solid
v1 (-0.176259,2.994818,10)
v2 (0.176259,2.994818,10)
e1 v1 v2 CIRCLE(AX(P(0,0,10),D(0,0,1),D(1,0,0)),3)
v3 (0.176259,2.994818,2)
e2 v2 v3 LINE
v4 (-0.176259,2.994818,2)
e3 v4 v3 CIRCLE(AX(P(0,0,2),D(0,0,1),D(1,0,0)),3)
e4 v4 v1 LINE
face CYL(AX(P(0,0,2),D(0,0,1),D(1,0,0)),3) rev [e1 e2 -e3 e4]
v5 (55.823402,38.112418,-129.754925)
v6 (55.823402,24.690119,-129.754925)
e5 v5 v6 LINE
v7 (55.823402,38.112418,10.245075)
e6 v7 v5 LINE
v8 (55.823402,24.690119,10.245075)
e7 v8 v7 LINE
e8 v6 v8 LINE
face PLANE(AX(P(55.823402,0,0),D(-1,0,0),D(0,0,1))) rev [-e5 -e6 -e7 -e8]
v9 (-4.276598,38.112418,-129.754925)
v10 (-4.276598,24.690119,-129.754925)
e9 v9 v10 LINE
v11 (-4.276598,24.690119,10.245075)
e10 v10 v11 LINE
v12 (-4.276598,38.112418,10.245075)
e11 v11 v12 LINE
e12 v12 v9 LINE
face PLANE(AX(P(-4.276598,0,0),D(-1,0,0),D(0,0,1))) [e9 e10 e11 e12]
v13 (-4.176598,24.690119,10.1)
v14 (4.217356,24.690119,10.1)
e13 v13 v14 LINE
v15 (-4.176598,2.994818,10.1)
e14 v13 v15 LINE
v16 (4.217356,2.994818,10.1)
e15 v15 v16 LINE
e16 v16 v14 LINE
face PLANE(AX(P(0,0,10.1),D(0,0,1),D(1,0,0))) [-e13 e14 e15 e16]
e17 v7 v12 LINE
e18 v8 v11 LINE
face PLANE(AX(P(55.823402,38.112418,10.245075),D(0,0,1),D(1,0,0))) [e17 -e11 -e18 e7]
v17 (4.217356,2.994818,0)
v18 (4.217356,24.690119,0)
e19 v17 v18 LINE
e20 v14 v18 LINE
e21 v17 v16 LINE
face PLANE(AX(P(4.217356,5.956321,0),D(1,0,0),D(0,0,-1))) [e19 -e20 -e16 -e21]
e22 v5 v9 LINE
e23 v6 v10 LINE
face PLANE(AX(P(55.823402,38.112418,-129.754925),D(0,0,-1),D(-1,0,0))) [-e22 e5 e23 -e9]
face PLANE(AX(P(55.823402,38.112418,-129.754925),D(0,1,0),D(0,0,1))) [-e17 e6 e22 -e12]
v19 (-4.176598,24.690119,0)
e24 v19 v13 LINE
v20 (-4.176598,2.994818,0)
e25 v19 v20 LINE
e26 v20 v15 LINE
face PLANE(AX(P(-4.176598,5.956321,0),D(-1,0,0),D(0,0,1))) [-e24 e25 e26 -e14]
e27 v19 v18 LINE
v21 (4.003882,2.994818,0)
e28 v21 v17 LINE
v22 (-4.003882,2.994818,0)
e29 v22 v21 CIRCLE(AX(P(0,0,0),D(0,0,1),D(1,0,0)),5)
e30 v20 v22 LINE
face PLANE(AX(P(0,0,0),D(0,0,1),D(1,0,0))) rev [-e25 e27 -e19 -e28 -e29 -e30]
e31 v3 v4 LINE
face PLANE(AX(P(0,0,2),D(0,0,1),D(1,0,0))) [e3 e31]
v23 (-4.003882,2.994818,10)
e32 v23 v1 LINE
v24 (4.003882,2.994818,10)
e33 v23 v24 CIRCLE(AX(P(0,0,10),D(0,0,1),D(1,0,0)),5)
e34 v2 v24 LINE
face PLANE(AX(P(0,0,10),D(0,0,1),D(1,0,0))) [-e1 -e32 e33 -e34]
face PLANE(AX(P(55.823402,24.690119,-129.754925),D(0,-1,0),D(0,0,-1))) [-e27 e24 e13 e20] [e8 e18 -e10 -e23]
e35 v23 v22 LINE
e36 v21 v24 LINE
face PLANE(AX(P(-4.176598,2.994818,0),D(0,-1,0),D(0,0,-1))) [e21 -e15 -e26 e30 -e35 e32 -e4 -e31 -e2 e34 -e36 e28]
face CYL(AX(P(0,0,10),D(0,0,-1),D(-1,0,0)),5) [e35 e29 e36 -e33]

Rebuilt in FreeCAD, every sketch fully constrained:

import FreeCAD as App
import Part
import Sketcher

V = App.Vector
Q = App.Units.Quantity


def add_polygon(sketch, points):
    """Adds a closed chain of lines whose ends are joined by coincident constraints."""
    first, n = sketch.GeometryCount, len(points)
    for a, b in zip(points, points[1:] + points[:1]):
        sketch.addGeometry(Part.LineSegment(App.Vector(*a, 0), App.Vector(*b, 0)), False)
    for i in range(n):
        sketch.addConstraint(Sketcher.Constraint("Coincident", first + i, 2, first + (i + 1) % n, 1))

doc = App.newDocument("Part")
body = doc.addObject("PartDesign::Body", "Body")

# Sketch on XY plane
sketch1 = body.newObject("Sketcher::SketchObject", "Sketch")
sketch1.AttachmentSupport = (doc.getObject("XY_Plane"), [""])
sketch1.MapMode = "FlatFace"
sketch1.addGeometry(Part.Circle(V(0, 0, 0), V(0, 0, 1), 5), False)
sketch1.addConstraint(Sketcher.Constraint("Coincident", 0, 3, -1, 1))
sketch1.addConstraint(Sketcher.Constraint("Diameter", 0, Q("10 mm")))
pad1 = body.newObject("PartDesign::Pad", "Pad")
pad1.Profile = sketch1
pad1.Length = 10

# Sketch on XY plane
sketch2 = body.newObject("Sketcher::SketchObject", "Sketch001")
sketch2.AttachmentSupport = (doc.getObject("XY_Plane"), [""])
sketch2.MapMode = "FlatFace"
sketch2.AttachmentOffset = App.Placement(V(0, 0, 10), App.Rotation())
sketch2.addGeometry(Part.Circle(V(0, 0, 0), V(0, 0, 1), 3), False)
sketch2.addConstraint(Sketcher.Constraint("Coincident", 0, 3, -1, 1))
sketch2.addConstraint(Sketcher.Constraint("Diameter", 0, Q("6 mm")))
pocket1 = body.newObject("PartDesign::Pocket", "Pocket")
pocket1.Profile = sketch2
pocket1.Length = 8

# Sketch on XY plane
sketch3 = body.newObject("Sketcher::SketchObject", "Sketch002")
sketch3.AttachmentSupport = (doc.getObject("XY_Plane"), [""])
sketch3.MapMode = "FlatFace"
sketch3.AttachmentOffset = App.Placement(V(0, 0, 10), App.Rotation())
add_polygon(sketch3, [(-4.2, 6), (-4.2, 3), (4.2, 3), (4.2, 6)])  # lines 0-3
sketch3.addConstraint(Sketcher.Constraint("Vertical", 0))
sketch3.addConstraint(Sketcher.Constraint("Horizontal", 1))
sketch3.addConstraint(Sketcher.Constraint("Vertical", 2))
sketch3.addConstraint(Sketcher.Constraint("Horizontal", 3))
sketch3.addConstraint(Sketcher.Constraint("DistanceX", 1, 1, 1, 2, Q("8.393954 mm")))
sketch3.addConstraint(Sketcher.Constraint("DistanceY", 0, 2, 0, 1, Q("2.961503 mm")))
sketch3.addConstraint(Sketcher.Constraint("DistanceY", -1, 1, 2, 2, Q("5.956321 mm")))
sketch3.addConstraint(Sketcher.Constraint("DistanceX", 0, 2, -1, 1, Q("4.176598 mm")))
pad2 = body.newObject("PartDesign::Pad", "Pad001")
pad2.Profile = sketch3
pad2.Type = "TwoLengths"
pad2.Length = 0.1
pad2.Length2 = 10

# Sketch on XZ plane
sketch4 = body.newObject("Sketcher::SketchObject", "Sketch003")
sketch4.AttachmentSupport = (doc.getObject("XZ_Plane"), [""])
sketch4.MapMode = "FlatFace"
sketch4.AttachmentOffset = App.Placement(V(0, 0, -5.956321), App.Rotation())
add_polygon(sketch4, [(-4, 0), (-4, 10), (4, 10), (4, 0)])  # lines 0-3
sketch4.addConstraint(Sketcher.Constraint("Vertical", 0))
sketch4.addConstraint(Sketcher.Constraint("Horizontal", 1))
sketch4.addConstraint(Sketcher.Constraint("Vertical", 2))
sketch4.addConstraint(Sketcher.Constraint("Horizontal", 3))
sketch4.addConstraint(Sketcher.Constraint("PointOnObject", 2, 2, -1))
sketch4.addConstraint(Sketcher.Constraint("DistanceY", 0, 1, 0, 2, Q("10.1 mm")))
sketch4.addConstraint(Sketcher.Constraint("DistanceX", 1, 1, 1, 2, Q("8.393954 mm")))
sketch4.addConstraint(Sketcher.Constraint("DistanceX", 0, 2, -1, 1, Q("4.176598 mm")))
pad3 = body.newObject("PartDesign::Pad", "Pad002")
pad3.Profile = sketch4
pad3.Length = 30
pad3.Reversed = True

# Sketch on YZ plane
sketch5 = body.newObject("Sketcher::SketchObject", "Sketch004")
sketch5.AttachmentSupport = (doc.getObject("YZ_Plane"), [""])
sketch5.MapMode = "FlatFace"
sketch5.AttachmentOffset = App.Placement(V(0, 0, -4.176598), App.Rotation())
add_polygon(sketch5, [(38, -130), (25, -130), (25, 10), (38, 10)])  # lines 0-3
sketch5.addConstraint(Sketcher.Constraint("Horizontal", 0))
sketch5.addConstraint(Sketcher.Constraint("Vertical", 1))
sketch5.addConstraint(Sketcher.Constraint("Horizontal", 2))
sketch5.addConstraint(Sketcher.Constraint("Vertical", 3))
sketch5.addConstraint(Sketcher.Constraint("DistanceY", 1, 1, 1, 2, Q("140 mm")))
sketch5.addConstraint(Sketcher.Constraint("DistanceX", 0, 2, 0, 1, Q("13.422299 mm")))
sketch5.addConstraint(Sketcher.Constraint("DistanceX", -1, 1, 0, 2, Q("24.690119 mm")))
sketch5.addConstraint(Sketcher.Constraint("DistanceY", 0, 2, -1, 1, Q("129.754925 mm")))
pad4 = body.newObject("PartDesign::Pad", "Pad003")
pad4.Profile = sketch5
pad4.Type = "TwoLengths"
pad4.Length = 0.1
pad4.Length2 = 60
pad4.Reversed = True

doc.recompute()
